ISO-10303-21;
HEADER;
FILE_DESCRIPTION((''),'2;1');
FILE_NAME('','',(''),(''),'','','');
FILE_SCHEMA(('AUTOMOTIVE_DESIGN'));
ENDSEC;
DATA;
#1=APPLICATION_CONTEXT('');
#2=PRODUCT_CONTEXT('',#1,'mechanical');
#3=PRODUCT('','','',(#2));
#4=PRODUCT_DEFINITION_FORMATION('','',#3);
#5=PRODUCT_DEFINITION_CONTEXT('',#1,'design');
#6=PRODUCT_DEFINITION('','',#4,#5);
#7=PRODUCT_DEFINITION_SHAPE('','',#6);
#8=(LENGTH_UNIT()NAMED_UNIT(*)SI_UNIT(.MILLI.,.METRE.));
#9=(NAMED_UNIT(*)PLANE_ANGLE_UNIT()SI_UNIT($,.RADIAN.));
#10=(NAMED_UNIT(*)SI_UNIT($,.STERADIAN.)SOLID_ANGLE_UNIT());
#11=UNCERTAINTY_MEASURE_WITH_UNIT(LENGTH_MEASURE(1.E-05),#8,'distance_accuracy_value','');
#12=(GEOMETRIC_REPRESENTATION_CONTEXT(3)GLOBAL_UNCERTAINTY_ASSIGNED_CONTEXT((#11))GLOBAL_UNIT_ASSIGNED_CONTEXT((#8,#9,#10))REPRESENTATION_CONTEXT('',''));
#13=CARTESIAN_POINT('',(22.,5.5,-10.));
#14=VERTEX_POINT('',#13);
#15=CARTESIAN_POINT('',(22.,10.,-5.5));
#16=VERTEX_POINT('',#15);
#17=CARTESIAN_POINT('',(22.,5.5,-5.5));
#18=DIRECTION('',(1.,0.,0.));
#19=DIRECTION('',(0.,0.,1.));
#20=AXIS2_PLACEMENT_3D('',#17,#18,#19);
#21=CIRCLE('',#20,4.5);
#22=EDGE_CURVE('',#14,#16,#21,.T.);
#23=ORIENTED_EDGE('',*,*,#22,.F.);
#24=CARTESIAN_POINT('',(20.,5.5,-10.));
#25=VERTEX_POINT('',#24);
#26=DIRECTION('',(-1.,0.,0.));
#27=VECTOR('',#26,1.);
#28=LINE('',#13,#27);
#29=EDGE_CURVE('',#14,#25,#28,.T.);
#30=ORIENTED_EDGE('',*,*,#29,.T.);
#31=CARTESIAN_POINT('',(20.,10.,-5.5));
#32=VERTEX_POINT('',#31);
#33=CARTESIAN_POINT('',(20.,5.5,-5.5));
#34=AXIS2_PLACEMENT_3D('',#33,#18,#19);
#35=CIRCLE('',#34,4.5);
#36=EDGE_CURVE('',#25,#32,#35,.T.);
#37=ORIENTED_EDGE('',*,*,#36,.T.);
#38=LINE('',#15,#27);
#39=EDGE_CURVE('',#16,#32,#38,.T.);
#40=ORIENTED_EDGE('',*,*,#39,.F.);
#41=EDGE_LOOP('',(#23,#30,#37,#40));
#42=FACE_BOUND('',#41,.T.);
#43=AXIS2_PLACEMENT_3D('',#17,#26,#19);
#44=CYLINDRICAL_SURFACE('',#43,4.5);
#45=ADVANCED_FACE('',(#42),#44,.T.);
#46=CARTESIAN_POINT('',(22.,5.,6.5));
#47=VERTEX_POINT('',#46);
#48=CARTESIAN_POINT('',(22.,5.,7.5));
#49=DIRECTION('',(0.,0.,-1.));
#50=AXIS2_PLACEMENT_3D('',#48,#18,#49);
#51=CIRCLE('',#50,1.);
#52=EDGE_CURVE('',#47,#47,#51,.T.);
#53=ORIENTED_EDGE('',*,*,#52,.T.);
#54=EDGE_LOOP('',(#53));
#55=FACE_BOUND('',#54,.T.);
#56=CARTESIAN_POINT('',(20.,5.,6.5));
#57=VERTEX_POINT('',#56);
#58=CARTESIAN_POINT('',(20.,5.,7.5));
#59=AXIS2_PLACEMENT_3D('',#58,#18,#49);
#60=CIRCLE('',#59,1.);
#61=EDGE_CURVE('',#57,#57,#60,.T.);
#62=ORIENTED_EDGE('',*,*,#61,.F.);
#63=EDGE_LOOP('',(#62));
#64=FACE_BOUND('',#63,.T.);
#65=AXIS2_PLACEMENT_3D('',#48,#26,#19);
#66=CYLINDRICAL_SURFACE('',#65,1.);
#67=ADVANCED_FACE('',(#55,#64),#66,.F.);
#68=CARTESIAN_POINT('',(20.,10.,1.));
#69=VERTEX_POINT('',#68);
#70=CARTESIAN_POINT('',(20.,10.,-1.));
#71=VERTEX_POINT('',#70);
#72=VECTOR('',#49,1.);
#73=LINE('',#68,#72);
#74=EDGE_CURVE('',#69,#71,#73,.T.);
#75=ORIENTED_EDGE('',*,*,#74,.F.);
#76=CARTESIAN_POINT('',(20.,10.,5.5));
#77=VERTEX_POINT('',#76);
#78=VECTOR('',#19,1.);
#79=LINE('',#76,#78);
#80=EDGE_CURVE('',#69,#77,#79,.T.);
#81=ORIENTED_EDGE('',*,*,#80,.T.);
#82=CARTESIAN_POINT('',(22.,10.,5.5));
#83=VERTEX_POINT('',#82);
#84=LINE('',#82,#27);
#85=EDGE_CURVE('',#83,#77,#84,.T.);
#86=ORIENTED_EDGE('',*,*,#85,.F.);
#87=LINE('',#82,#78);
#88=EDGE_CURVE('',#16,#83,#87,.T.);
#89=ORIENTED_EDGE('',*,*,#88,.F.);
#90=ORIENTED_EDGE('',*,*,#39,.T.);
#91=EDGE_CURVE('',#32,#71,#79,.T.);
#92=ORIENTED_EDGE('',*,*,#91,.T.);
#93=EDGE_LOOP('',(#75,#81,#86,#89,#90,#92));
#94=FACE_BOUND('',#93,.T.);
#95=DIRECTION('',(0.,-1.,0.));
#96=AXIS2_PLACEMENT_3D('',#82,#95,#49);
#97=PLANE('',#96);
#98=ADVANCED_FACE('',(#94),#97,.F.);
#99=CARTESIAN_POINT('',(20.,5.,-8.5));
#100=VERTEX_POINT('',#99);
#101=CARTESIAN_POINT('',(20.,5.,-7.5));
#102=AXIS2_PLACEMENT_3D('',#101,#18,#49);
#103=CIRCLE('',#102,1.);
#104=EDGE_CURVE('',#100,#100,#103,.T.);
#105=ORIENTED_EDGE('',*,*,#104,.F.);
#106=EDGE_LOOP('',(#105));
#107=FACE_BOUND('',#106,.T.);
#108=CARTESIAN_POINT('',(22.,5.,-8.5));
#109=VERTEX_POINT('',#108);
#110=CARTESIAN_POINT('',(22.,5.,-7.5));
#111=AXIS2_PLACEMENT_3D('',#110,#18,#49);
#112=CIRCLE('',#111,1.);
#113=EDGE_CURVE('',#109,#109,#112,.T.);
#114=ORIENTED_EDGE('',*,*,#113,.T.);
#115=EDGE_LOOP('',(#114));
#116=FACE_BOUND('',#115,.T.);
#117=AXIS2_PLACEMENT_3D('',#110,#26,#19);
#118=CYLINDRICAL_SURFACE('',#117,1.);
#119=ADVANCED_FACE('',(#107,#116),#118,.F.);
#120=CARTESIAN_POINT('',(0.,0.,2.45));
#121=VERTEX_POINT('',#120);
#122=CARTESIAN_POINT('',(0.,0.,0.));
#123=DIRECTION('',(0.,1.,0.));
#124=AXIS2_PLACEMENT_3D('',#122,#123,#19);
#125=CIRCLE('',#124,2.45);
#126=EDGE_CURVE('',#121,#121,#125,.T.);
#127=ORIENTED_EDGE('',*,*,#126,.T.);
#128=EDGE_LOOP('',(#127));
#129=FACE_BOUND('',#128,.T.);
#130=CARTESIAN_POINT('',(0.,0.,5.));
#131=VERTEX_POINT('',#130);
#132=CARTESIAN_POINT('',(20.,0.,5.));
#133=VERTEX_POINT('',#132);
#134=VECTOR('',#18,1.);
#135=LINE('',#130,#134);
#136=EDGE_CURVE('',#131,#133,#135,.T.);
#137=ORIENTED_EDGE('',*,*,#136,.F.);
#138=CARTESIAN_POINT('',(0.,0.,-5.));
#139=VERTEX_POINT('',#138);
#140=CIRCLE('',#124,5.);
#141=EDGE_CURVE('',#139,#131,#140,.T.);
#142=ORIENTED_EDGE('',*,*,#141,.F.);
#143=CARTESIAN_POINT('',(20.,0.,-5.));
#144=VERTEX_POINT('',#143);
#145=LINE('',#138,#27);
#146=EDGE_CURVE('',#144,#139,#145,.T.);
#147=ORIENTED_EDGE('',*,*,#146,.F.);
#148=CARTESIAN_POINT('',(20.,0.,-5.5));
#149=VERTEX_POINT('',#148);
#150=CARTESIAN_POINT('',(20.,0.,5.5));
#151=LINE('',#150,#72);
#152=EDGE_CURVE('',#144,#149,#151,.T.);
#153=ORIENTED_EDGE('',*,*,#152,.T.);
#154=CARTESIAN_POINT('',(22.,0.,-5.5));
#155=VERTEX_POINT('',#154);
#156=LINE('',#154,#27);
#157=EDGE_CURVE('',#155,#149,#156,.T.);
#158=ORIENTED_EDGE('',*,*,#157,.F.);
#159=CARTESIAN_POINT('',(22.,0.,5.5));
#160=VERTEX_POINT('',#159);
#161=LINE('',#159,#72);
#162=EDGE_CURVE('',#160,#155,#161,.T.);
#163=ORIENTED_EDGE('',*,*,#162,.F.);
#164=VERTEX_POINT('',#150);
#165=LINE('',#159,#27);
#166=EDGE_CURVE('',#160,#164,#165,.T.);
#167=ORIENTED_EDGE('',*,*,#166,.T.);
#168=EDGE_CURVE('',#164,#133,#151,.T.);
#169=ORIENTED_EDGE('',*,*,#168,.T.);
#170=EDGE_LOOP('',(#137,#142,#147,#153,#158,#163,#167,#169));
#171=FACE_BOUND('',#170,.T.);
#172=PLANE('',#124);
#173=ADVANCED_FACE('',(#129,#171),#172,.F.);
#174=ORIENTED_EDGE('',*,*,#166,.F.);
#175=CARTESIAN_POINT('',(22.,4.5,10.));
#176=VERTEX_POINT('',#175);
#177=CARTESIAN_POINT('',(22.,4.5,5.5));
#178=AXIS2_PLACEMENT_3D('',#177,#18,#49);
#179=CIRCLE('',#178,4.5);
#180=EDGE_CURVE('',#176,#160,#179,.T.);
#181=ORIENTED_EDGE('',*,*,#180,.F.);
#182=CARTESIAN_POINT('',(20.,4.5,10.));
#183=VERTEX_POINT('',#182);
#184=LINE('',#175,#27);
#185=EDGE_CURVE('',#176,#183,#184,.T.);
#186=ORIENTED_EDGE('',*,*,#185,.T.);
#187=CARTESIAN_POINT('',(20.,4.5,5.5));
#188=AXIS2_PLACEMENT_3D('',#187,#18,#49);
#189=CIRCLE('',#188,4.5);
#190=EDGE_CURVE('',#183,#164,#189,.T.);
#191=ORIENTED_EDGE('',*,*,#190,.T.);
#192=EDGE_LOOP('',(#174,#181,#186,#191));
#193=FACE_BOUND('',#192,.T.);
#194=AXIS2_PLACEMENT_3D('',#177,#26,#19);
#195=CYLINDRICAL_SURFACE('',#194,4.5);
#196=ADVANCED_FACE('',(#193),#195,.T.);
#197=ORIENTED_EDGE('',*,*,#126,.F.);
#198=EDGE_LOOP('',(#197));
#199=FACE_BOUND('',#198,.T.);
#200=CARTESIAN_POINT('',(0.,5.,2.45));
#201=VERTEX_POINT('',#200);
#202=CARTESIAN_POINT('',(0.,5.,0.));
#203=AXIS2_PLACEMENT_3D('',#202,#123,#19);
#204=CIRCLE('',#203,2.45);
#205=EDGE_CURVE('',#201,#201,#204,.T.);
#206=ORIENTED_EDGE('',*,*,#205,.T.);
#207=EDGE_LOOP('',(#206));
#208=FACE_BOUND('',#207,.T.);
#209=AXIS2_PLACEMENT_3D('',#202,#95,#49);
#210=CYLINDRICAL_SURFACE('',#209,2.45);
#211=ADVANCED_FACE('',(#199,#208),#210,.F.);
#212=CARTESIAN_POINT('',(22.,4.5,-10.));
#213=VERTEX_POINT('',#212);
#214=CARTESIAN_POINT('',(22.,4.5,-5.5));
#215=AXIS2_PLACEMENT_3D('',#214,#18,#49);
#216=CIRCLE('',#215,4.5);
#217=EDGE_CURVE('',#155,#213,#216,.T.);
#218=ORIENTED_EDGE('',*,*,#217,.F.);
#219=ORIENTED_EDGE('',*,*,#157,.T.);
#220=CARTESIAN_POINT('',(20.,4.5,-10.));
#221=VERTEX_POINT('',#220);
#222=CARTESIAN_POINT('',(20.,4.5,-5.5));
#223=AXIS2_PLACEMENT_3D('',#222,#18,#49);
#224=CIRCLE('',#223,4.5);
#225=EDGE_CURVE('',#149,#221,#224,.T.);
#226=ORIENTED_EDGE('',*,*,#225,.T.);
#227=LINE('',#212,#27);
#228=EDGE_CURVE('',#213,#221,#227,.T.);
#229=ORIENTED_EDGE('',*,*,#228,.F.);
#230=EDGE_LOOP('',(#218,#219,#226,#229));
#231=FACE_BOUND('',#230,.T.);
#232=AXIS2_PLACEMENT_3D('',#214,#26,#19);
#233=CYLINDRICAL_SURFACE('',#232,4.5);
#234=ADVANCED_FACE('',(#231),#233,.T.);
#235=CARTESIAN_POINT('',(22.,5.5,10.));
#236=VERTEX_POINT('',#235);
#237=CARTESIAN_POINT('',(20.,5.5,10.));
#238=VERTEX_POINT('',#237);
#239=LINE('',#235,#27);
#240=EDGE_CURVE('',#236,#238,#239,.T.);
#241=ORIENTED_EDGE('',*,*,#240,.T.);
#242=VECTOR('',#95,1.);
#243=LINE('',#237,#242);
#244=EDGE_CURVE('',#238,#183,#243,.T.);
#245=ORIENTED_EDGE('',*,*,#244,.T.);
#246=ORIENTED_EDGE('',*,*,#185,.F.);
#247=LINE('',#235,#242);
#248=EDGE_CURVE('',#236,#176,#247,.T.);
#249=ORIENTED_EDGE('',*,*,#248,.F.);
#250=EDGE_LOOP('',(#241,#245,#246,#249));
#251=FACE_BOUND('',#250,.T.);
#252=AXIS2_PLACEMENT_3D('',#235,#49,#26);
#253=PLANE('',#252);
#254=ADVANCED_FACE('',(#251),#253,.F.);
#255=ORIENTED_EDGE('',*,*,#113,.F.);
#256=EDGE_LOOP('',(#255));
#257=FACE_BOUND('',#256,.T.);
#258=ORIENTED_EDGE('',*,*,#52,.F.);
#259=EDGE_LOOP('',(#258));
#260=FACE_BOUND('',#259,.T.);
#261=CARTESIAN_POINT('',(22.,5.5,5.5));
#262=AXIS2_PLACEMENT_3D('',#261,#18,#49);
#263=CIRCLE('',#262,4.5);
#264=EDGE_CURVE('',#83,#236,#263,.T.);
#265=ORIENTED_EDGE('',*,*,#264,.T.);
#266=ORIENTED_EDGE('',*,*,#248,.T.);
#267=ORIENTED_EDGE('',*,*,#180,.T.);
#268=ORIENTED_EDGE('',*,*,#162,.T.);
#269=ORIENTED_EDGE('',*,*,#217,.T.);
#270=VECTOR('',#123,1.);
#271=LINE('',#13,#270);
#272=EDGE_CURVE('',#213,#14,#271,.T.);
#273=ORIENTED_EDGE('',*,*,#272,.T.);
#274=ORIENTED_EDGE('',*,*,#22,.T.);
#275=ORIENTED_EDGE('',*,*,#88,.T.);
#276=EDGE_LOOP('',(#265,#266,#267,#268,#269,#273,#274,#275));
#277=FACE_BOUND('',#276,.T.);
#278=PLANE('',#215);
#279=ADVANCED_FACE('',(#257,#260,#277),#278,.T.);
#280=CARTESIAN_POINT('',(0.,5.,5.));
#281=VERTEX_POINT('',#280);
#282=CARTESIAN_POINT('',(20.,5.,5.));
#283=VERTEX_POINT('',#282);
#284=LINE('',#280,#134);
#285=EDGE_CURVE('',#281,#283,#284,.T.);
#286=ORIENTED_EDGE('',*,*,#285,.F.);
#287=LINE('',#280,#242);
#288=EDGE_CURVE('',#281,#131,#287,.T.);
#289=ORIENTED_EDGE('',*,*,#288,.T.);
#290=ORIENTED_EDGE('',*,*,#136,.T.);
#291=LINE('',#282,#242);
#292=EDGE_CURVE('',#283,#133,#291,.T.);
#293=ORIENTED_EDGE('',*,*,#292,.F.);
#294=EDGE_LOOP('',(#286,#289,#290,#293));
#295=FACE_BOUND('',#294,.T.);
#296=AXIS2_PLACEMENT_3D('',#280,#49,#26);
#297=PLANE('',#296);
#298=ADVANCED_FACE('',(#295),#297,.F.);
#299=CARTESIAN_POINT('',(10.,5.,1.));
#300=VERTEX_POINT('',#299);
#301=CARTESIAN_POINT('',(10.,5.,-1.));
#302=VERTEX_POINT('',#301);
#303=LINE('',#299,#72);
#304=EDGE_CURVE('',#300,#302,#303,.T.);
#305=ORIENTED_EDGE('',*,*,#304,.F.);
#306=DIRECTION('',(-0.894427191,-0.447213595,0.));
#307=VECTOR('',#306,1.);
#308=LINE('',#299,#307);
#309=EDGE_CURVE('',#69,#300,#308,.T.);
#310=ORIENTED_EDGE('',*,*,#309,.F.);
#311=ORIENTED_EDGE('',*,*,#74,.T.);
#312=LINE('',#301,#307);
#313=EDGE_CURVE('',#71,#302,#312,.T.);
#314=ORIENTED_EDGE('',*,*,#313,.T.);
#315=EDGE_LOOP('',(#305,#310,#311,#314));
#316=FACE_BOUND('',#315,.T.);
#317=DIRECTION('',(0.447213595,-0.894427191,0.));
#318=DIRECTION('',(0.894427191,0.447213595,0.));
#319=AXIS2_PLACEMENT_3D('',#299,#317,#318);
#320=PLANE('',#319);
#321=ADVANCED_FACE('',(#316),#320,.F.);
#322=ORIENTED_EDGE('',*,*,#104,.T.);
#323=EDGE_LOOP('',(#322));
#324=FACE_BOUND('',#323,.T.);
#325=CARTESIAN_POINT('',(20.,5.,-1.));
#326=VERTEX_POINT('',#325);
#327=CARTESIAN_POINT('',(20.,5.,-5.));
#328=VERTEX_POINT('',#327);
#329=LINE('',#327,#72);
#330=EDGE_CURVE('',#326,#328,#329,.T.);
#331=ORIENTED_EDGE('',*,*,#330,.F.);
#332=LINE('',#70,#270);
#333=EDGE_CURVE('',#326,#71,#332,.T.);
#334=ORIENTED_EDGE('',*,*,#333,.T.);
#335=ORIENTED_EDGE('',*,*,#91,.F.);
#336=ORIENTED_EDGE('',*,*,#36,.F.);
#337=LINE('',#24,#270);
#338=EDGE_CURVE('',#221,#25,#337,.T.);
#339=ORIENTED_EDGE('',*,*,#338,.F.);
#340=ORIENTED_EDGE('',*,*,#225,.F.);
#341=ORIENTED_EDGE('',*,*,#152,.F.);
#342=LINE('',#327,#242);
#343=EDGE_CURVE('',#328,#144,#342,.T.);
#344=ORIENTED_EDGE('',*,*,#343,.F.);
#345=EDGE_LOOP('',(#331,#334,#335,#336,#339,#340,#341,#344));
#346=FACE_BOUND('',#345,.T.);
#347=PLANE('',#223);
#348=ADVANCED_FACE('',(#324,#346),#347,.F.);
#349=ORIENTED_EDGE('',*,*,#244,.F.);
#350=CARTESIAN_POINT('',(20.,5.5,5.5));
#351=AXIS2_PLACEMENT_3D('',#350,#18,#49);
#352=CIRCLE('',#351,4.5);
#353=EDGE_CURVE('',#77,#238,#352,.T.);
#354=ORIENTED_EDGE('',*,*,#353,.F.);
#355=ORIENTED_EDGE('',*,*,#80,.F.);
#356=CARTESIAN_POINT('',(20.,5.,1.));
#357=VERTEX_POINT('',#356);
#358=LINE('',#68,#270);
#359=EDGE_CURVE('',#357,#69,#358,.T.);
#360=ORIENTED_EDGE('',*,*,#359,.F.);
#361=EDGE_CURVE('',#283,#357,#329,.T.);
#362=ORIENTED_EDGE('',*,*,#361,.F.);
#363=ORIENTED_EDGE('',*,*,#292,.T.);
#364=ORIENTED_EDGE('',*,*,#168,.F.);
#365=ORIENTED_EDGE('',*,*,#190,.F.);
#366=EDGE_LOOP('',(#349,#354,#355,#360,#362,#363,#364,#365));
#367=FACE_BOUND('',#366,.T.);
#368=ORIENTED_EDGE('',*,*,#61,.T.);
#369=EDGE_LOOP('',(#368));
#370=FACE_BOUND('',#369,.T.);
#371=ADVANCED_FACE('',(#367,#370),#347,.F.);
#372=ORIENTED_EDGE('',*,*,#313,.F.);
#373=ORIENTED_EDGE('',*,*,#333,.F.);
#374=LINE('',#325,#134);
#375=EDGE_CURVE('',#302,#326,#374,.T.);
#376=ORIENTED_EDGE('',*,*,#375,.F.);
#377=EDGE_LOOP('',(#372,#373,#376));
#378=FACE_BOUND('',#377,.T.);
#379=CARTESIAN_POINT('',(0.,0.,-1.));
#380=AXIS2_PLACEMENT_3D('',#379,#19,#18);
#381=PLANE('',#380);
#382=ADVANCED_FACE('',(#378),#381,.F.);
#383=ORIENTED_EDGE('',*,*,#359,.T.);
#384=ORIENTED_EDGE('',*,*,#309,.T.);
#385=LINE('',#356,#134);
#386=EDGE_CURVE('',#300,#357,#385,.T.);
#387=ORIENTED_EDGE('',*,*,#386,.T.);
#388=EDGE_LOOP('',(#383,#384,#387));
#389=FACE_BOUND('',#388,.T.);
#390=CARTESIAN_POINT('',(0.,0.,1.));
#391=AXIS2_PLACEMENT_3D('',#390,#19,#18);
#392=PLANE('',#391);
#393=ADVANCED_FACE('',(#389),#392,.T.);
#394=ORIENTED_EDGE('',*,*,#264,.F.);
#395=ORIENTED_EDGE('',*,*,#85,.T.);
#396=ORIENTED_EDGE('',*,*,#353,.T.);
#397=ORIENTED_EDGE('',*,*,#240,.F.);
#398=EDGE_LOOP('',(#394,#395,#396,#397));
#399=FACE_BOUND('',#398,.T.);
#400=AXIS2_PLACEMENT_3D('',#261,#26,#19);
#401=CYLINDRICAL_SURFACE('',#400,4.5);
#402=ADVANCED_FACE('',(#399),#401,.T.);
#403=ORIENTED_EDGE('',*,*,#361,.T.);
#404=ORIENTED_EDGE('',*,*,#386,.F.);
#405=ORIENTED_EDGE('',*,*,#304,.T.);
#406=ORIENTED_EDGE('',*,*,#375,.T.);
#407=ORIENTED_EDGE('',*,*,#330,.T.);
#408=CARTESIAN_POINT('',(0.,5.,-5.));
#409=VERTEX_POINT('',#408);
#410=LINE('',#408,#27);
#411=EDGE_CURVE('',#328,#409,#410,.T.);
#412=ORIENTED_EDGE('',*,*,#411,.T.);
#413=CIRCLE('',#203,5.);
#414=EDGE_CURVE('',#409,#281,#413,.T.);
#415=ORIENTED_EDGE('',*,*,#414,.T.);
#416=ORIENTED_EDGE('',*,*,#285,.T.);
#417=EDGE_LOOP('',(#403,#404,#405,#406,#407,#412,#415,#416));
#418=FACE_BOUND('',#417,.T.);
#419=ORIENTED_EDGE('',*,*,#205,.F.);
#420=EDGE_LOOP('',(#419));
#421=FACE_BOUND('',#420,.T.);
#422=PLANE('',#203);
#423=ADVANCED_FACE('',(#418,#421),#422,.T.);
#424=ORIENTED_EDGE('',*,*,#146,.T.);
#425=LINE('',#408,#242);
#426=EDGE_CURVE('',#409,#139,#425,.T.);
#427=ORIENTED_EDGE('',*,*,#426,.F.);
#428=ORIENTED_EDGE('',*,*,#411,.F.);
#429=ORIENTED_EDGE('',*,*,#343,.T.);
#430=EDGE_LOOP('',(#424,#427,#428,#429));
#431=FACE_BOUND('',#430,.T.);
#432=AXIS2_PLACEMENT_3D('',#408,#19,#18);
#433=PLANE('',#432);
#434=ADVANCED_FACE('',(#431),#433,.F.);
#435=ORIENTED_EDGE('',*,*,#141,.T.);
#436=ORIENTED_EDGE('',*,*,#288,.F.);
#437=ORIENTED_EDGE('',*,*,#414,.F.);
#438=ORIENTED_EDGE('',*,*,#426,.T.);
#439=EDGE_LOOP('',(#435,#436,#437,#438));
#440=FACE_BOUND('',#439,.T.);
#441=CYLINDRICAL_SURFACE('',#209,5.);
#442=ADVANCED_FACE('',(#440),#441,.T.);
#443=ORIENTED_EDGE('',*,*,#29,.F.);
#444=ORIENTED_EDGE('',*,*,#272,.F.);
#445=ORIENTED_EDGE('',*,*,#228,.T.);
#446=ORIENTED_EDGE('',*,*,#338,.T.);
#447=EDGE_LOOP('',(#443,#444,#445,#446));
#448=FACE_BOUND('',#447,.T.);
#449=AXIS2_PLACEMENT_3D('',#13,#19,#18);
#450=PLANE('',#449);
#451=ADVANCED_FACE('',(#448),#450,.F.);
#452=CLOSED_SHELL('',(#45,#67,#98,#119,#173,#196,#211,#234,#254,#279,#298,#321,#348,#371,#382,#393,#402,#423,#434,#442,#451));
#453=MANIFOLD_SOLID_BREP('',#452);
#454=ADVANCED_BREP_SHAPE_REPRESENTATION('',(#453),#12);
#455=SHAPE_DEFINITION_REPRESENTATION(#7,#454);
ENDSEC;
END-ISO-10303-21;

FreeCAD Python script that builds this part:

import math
import FreeCAD as App
import Part
import Sketcher
from FreeCAD import Vector

doc = App.newDocument("Part")
body = doc.addObject("PartDesign::Body", "Body")

# Sketch on XZ plane
sketch1 = body.newObject("Sketcher::SketchObject", "Sketch")
sketch1.AttachmentSupport = (doc.getObject("XZ_Plane"), [""])
sketch1.MapMode = "FlatFace"
sketch1.addGeometry([
    Part.LineSegment(Vector(20, -5, 0), Vector(0, -5, 0)),  # 0
    Part.ArcOfCircle(Part.Circle(Vector(0, 0, 0), Vector(0, 0, 1), 5), math.radians(90), math.radians(270)),  # 1
    Part.LineSegment(Vector(0, 5, 0), Vector(20, 5, 0)),  # 2
    Part.LineSegment(Vector(20, 5, 0), Vector(20, -5, 0)),  # 3
    Part.Circle(Vector(0, 0, 0), Vector(0, 0, 1), 2.5),  # 4
], False)
sketch1.addConstraint([
    Sketcher.Constraint("Tangent", 0, 2, 1, 2),
    Sketcher.Constraint("Tangent", 1, 1, 2, 1),
    Sketcher.Constraint("Coincident", 2, 2, 3, 1),
    Sketcher.Constraint("Coincident", 3, 2, 0, 1),
    Sketcher.Constraint("Horizontal", 0),
    Sketcher.Constraint("Horizontal", 2),
    Sketcher.Constraint("Vertical", 3),
    Sketcher.Constraint("Coincident", 1, 3, -1, 1),
    Sketcher.Constraint("Coincident", 4, 3, -1, 1),
    Sketcher.Constraint("Radius", 1, 5.0),
    Sketcher.Constraint("Diameter", 4, 4.9),
    Sketcher.Constraint("DistanceX", 0, 2, 0, 1, 20.0),
])
pad1 = body.newObject("PartDesign::Pad", "Pad")
pad1.Profile = sketch1
pad1.Length = 5
pad1.Reversed = True

# Sketch on YZ plane
sketch2 = body.newObject("Sketcher::SketchObject", "Sketch001")
sketch2.AttachmentSupport = (doc.getObject("YZ_Plane"), [""])
sketch2.MapMode = "FlatFace"
sketch2.AttachmentOffset = App.Placement(Vector(0, 0, 20), App.Rotation())
sketch2.addGeometry([
    Part.LineSegment(Vector(10, -5.5, 0), Vector(10, 5.5, 0)),  # 0
    Part.ArcOfCircle(Part.Circle(Vector(5.5, 5.5, 0), Vector(0, 0, 1), 4.5), math.radians(0), math.radians(90)),  # 1
    Part.LineSegment(Vector(5.5, 10, 0), Vector(4.5, 10, 0)),  # 2
    Part.ArcOfCircle(Part.Circle(Vector(4.5, 5.5, 0), Vector(0, 0, 1), 4.5), math.radians(90), math.radians(180)),  # 3
    Part.LineSegment(Vector(0, 5.5, 0), Vector(0, -5.5, 0)),  # 4
    Part.ArcOfCircle(Part.Circle(Vector(4.5, -5.5, 0), Vector(0, 0, 1), 4.5), math.radians(-180), math.radians(-90)),  # 5
    Part.LineSegment(Vector(4.5, -10, 0), Vector(5.5, -10, 0)),  # 6
    Part.ArcOfCircle(Part.Circle(Vector(5.5, -5.5, 0), Vector(0, 0, 1), 4.5), math.radians(-90), math.radians(0)),  # 7
    Part.Circle(Vector(5, -7.5, 0), Vector(0, 0, 1), 1),  # 8
    Part.Circle(Vector(5, 7.5, 0), Vector(0, 0, 1), 1),  # 9
], False)
sketch2.addConstraint([
    Sketcher.Constraint("Tangent", 0, 2, 1, 1),
    Sketcher.Constraint("Tangent", 1, 2, 2, 1),
    Sketcher.Constraint("Tangent", 2, 2, 3, 1),
    Sketcher.Constraint("Tangent", 3, 2, 4, 1),
    Sketcher.Constraint("Tangent", 4, 2, 5, 1),
    Sketcher.Constraint("Tangent", 5, 2, 6, 1),
    Sketcher.Constraint("Tangent", 6, 2, 7, 1),
    Sketcher.Constraint("Tangent", 7, 2, 0, 1),
    Sketcher.Constraint("Vertical", 0),
    Sketcher.Constraint("Horizontal", 2),
    Sketcher.Constraint("Vertical", 4),
    Sketcher.Constraint("Horizontal", 6),
    Sketcher.Constraint("Equal", 1, 3),
    Sketcher.Constraint("Equal", 3, 5),
    Sketcher.Constraint("Equal", 5, 7),
    Sketcher.Constraint("Equal", 8, 9),
    Sketcher.Constraint("Symmetric", 3, 2, 4, 2, -1, 1),
    Sketcher.Constraint("Symmetric", 8, 3, 9, 3, -1),
    Sketcher.Constraint("Diameter", 8, 2.0),
    Sketcher.Constraint("Radius", 1, 4.5),
    Sketcher.Constraint("DistanceX", 2, 2, 2, 1, 1.0),
    Sketcher.Constraint("DistanceY", 0, 1, 0, 2, 11.0),
    Sketcher.Constraint("DistanceX", -1, 1, 8, 3, 5.0),
    Sketcher.Constraint("DistanceY", 8, 3, 5, 3, 2.0),
])
pad2 = body.newObject("PartDesign::Pad", "Pad001")
pad2.Profile = sketch2
pad2.Length = 2

# Sketch on XY plane
sketch3 = body.newObject("Sketcher::SketchObject", "Sketch002")
sketch3.AttachmentSupport = (doc.getObject("XY_Plane"), [""])
sketch3.MapMode = "FlatFace"
sketch3.addGeometry([
    Part.LineSegment(Vector(20, 10, 0), Vector(10, 5, 0)),
    Part.LineSegment(Vector(10, 5, 0), Vector(20, 5, 0)),
    Part.LineSegment(Vector(20, 5, 0), Vector(20, 10, 0)),
], False)
sketch3.addConstraint([
    Sketcher.Constraint("Coincident", 0, 2, 1, 1),
    Sketcher.Constraint("Coincident", 1, 2, 2, 1),
    Sketcher.Constraint("Coincident", 2, 2, 0, 1),
    Sketcher.Constraint("Horizontal", 1),
    Sketcher.Constraint("Vertical", 2),
    Sketcher.Constraint("DistanceX", 1, 1, 1, 2, 10.0),
    Sketcher.Constraint("DistanceY", 2, 1, 2, 2, 5.0),
    Sketcher.Constraint("DistanceX", -1, 1, 0, 2, 10.0),
    Sketcher.Constraint("DistanceY", -1, 1, 0, 2, 5.0),
])
pad3 = body.newObject("PartDesign::Pad", "Pad002")
pad3.Profile = sketch3
pad3.Length = 2
pad3.Midplane = True

doc.recompute()
